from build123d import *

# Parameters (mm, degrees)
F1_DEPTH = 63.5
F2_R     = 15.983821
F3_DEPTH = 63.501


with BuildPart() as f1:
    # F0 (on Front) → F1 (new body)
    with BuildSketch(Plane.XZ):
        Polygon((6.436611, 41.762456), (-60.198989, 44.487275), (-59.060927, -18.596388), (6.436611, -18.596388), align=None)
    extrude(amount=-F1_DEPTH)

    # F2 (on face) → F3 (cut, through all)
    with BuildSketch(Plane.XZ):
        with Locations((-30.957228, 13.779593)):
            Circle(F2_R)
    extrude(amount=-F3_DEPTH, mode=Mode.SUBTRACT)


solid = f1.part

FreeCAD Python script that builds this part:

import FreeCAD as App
import Part
import Sketcher
Q = App.Units.Quantity


def add_polygon(sketch, points):
    """Adds a closed chain of lines whose ends are joined by coincident constraints."""
    first, n = sketch.GeometryCount, len(points)
    for a, b in zip(points, points[1:] + points[:1]):
        sketch.addGeometry(Part.LineSegment(App.Vector(*a, 0), App.Vector(*b, 0)), False)
    for i in range(n):
        sketch.addConstraint(Sketcher.Constraint("Coincident", first + i, 2, first + (i + 1) % n, 1))

doc = App.newDocument("Part")
body = doc.addObject("PartDesign::Body", "Body")

# Sketch on XZ plane
sketch1 = doc.addObject("Sketcher::SketchObject", "Sketch")
body.addObject(sketch1)
sketch1.AttachmentSupport = (doc.XZ_Plane, [""])
sketch1.MapMode = "FlatFace"
add_polygon(sketch1, [(6.436611, 41.762456), (-60.198989, 44.487275), (-59.060927, -18.596388), (6.436611, -18.596388)])  # lines 0-3
sketch1.addConstraint([
    Sketcher.Constraint("Horizontal", 2),
    Sketcher.Constraint("Vertical", 3),
    Sketcher.Constraint("DistanceX", 2, 1, 2, 2, 65.497538),
    Sketcher.Constraint("DistanceX", 0, 2, 2, 2, 66.6356),
    Sketcher.Constraint("DistanceY", 3, 1, 3, 2, 60.358844),
    Sketcher.Constraint("DistanceX", 0, 2, -1, 1, 60.198989),
    Sketcher.Constraint("DistanceY", 1, 2, -1, 1, 18.596388),
    Sketcher.Constraint("DistanceY", 3, 2, 0, 2, 2.724819),
])
pad1 = doc.addObject("PartDesign::Pad", "Pad")
body.addObject(pad1)
pad1.Profile = sketch1
pad1.Length = Q("2.5 in")
pad1.Reversed = True

# Sketch on XZ plane
sketch2 = doc.addObject("Sketcher::SketchObject", "Sketch001")
body.addObject(sketch2)
sketch2.AttachmentSupport = (doc.XZ_Plane, [""])
sketch2.MapMode = "FlatFace"
sketch2.addGeometry(Part.Circle(App.Vector(-30.957228, 13.779593, 0), App.Vector(0, 0, 1), 15.983821), False)
sketch2.addConstraint([
    Sketcher.Constraint("Diameter", 0, 31.967642),
    Sketcher.Constraint("DistanceX", 0, 3, -1, 1, 30.957228),
    Sketcher.Constraint("DistanceY", -1, 1, 0, 3, 13.779593),
])
pocket1 = doc.addObject("PartDesign::Pocket", "Pocket")
body.addObject(pocket1)
pocket1.Profile = sketch2
pocket1.Type = "ThroughAll"

doc.recompute()
